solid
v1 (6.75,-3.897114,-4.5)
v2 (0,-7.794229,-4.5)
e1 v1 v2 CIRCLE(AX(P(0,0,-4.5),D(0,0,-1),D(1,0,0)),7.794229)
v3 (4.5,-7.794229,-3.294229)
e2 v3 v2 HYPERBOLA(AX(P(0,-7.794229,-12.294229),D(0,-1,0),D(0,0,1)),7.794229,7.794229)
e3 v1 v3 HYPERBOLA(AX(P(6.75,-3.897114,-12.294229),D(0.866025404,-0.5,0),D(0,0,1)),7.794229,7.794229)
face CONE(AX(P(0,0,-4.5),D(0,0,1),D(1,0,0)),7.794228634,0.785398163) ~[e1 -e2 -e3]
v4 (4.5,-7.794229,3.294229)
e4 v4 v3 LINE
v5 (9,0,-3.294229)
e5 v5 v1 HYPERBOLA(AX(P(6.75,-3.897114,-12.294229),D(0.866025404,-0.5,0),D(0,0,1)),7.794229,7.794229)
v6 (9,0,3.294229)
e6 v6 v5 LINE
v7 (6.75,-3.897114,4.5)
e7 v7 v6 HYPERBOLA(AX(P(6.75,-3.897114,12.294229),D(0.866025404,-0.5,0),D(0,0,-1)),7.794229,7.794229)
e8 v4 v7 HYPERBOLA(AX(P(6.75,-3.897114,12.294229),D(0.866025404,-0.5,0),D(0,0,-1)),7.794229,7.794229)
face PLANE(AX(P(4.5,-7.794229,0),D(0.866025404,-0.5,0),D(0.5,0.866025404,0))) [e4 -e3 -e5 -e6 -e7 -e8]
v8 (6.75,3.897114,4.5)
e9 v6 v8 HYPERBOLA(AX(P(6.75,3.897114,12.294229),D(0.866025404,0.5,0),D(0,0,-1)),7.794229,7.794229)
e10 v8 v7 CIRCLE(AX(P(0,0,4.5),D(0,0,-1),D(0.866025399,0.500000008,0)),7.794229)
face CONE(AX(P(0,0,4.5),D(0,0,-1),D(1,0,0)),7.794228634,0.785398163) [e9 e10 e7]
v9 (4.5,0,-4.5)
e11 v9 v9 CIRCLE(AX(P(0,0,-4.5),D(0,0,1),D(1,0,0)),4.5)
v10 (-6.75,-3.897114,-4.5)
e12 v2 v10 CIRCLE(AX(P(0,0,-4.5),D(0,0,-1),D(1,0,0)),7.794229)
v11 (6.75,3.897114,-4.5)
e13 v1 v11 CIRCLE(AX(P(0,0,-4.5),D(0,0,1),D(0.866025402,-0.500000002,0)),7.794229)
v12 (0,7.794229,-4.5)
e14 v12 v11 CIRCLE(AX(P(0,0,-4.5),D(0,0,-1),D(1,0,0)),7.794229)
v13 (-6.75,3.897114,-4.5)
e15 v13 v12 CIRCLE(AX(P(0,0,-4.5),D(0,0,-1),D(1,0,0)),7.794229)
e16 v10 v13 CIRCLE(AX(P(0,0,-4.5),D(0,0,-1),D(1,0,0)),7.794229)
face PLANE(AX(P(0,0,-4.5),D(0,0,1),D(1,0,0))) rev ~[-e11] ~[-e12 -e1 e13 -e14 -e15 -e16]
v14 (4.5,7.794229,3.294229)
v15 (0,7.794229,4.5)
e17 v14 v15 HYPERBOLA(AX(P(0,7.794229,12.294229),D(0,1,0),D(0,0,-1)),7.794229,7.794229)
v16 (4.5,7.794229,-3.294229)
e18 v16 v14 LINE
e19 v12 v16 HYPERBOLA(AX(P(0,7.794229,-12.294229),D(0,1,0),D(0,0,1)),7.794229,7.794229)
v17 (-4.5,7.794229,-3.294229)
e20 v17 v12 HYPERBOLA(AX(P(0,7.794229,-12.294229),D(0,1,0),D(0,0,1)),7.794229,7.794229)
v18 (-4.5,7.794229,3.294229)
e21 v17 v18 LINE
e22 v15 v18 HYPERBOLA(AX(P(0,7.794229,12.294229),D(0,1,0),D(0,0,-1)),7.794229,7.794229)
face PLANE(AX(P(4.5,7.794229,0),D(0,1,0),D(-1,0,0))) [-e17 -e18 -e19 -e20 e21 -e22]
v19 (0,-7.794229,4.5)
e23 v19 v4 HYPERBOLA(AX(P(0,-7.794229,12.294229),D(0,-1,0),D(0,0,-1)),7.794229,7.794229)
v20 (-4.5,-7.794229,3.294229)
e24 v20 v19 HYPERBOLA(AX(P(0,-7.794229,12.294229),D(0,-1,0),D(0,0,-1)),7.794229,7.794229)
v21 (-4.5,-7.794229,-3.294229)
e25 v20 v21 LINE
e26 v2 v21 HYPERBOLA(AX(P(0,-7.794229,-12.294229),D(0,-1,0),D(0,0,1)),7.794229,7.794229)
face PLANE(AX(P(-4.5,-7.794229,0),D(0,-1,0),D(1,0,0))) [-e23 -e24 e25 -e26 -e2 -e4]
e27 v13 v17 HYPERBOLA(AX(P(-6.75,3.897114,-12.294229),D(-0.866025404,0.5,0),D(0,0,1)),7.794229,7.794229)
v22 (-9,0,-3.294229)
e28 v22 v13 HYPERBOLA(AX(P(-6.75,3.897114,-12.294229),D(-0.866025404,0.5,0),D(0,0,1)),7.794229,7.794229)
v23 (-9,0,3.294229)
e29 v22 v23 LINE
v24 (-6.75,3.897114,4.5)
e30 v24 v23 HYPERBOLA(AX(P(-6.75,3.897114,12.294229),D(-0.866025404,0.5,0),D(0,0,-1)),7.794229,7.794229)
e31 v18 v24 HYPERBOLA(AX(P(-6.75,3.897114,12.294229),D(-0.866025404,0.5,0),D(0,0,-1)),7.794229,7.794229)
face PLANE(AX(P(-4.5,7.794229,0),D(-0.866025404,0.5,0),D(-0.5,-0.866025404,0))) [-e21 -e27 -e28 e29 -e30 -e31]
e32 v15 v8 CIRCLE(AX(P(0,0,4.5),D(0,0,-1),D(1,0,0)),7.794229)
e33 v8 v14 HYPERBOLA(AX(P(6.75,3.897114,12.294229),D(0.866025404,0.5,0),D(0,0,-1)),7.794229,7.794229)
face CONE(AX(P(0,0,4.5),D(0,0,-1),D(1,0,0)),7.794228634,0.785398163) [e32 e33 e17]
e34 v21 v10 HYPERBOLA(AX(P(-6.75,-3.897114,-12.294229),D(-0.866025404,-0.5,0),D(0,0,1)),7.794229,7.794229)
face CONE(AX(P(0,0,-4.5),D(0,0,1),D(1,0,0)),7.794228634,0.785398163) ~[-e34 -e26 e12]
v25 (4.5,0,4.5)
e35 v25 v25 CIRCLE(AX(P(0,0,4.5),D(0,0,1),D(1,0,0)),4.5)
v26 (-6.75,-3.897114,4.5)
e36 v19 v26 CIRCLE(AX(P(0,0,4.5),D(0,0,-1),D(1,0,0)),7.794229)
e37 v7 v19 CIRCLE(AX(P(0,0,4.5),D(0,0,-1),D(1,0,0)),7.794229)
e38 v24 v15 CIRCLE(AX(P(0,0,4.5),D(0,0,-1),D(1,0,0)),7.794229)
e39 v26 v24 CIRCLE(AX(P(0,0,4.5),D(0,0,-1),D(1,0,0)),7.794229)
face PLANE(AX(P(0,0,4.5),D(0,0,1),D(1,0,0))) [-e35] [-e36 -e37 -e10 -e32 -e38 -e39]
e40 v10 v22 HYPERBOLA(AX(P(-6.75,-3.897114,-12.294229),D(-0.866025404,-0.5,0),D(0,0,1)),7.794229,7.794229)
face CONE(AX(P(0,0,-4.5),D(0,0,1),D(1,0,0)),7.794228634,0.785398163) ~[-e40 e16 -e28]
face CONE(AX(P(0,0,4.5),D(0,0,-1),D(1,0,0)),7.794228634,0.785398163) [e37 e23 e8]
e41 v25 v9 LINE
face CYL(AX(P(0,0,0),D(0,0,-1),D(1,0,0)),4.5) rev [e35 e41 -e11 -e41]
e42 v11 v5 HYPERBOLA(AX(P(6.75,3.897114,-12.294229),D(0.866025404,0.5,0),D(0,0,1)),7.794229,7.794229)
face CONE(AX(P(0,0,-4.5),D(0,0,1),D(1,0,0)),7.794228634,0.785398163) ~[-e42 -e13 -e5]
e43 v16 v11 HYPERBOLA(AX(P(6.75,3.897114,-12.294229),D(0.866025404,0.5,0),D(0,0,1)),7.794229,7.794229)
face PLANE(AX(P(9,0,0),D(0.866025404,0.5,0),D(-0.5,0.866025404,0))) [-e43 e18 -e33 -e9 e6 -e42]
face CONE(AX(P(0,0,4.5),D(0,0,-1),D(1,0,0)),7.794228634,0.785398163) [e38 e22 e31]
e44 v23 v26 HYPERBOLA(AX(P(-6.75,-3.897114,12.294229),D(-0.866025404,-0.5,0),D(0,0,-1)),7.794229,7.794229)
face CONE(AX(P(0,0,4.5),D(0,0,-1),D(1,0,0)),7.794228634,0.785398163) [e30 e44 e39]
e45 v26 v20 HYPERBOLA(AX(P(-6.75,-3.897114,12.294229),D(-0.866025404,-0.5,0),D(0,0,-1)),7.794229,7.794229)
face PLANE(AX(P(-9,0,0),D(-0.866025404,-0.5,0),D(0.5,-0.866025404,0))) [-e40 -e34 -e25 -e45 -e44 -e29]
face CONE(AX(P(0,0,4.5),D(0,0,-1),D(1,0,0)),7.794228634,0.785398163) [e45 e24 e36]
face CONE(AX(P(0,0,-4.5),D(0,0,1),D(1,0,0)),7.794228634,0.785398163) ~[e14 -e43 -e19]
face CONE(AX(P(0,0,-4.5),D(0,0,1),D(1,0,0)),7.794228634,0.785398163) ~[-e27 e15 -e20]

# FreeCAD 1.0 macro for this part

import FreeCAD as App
import Part
import Sketcher
Q = App.Units.Quantity


def add_polygon(sketch, points):
    """Adds a closed chain of lines whose ends are joined by coincident constraints."""
    first, n = sketch.GeometryCount, len(points)
    for a, b in zip(points, points[1:] + points[:1]):
        sketch.addGeometry(Part.LineSegment(App.Vector(*a, 0), App.Vector(*b, 0)), False)
    for i in range(n):
        sketch.addConstraint(Sketcher.Constraint("Coincident", first + i, 2, first + (i + 1) % n, 1))

doc = App.newDocument("Part")
body = doc.addObject("PartDesign::Body", "Body")

sketch1 = body.newObject("Sketcher::SketchObject", "Sketch")
sketch1.AttachmentSupport = (doc.getObject("XY_Plane"), [""])
sketch1.MapMode = "FlatFace"
add_polygon(sketch1, [(9, 0), (4.5, 7.8), (-4.5, 7.8), (-9, 0), (-4.5, -7.8), (4.5, -7.8)])
sketch1.addGeometry(Part.Circle(App.Vector(0, 0, 0), App.Vector(0, 0, 1), 4.5), False)
sketch1.addConstraint(Sketcher.Constraint("Horizontal", 1))
sketch1.addConstraint(Sketcher.Constraint("Horizontal", 4))
sketch1.addConstraint(Sketcher.Constraint("Coincident", 6, 3, -1, 1))
sketch1.addConstraint(Sketcher.Constraint("Symmetric", 0, 2, 3, 2, -1, 1))
sketch1.addConstraint(Sketcher.Constraint("Symmetric", 2, 2, 5, 2, -1, 1))
sketch1.addConstraint(Sketcher.Constraint("PointOnObject", 2, 2, -1))
sketch1.addConstraint(Sketcher.Constraint("Parallel", 2, 5))
sketch1.addConstraint(Sketcher.Constraint("Vertical", 1, 2, 3, 2))
sketch1.addConstraint(Sketcher.Constraint("Diameter", 6, 9.0))
sketch1.addConstraint(Sketcher.Constraint("DistanceX", 1, 2, 1, 1, 9.0))
sketch1.addConstraint(Sketcher.Constraint("Angle", 0, Q("120 deg")))
sketch1.addConstraint(Sketcher.Constraint("Distance", 0, 9.0))
pad1 = body.newObject("PartDesign::Pad", "Pad")
pad1.Profile = sketch1
pad1.Length = 9
pad1.Midplane = True

sketch2 = body.newObject("Sketcher::SketchObject", "Sketch001")
sketch2.AttachmentSupport = (doc.getObject("XY_Plane"), [""])
sketch2.MapMode = "FlatFace"
sketch2.AttachmentOffset = App.Placement(App.Vector(0, 0, 4.5), App.Rotation())
add_polygon(sketch2, [(-22, 20), (-22, -20), (22, -20), (22, 20)])
sketch2.addGeometry(Part.Circle(App.Vector(0, 0, 0), App.Vector(0, 0, 1), 8), False)
sketch2.addConstraint(Sketcher.Constraint("Vertical", 0))
sketch2.addConstraint(Sketcher.Constraint("Horizontal", 1))
sketch2.addConstraint(Sketcher.Constraint("Vertical", 2))
sketch2.addConstraint(Sketcher.Constraint("Horizontal", 3))
sketch2.addConstraint(Sketcher.Constraint("Coincident", 4, 3, -1, 1))
sketch2.addConstraint(Sketcher.Constraint("Symmetric", 0, 2, 2, 2, -1, 1))
sketch2.addConstraint(Sketcher.Constraint("DistanceY", 0, 2, 0, 1, 40.68))
sketch2.addConstraint(Sketcher.Constraint("DistanceX", 1, 1, 1, 2, 43.092))
sketch2.addConstraint(Sketcher.Constraint("Diameter", 4, 15.588457))
pocket1 = body.newObject("PartDesign::Pocket", "Pocket")
pocket1.Profile = sketch2
pocket1.Length = 9
pocket1.TaperAngle = 45
doc.recompute()

mirrored = body.newObject("PartDesign::Mirrored", "Mirrored")
mirrored.Originals = [pocket1]
mirrored.MirrorPlane = (doc.getObject("XY_Plane"), [""])
body.Tip = mirrored

doc.recompute()
